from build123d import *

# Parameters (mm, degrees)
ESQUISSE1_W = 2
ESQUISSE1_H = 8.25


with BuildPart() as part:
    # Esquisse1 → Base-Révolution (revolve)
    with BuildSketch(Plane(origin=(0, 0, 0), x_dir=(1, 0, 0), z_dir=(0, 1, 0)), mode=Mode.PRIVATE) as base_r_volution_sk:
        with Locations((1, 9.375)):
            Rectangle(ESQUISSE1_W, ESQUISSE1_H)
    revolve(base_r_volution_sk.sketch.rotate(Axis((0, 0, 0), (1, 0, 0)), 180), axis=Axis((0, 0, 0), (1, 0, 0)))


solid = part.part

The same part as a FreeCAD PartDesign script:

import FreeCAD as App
import Part
import Sketcher
Q = App.Units.Quantity

doc = App.newDocument("Part")
body = doc.addObject("PartDesign::Body", "Body")

sketch1 = doc.addObject("Sketcher::SketchObject", "Sketch")
body.addObject(sketch1)
sketch1.AttachmentSupport = (doc.XZ_Plane, [""])
sketch1.MapMode = "FlatFace"
sketch1.addGeometry(Part.LineSegment(App.Vector(0, -13.5, 0), App.Vector(0, -5.25, 0)), False)
sketch1.addGeometry(Part.LineSegment(App.Vector(0, -5.25, 0), App.Vector(2, -5.25, 0)), False)
sketch1.addGeometry(Part.LineSegment(App.Vector(2, -5.25, 0), App.Vector(2, -13.5, 0)), False)
sketch1.addGeometry(Part.LineSegment(App.Vector(2, -13.5, 0), App.Vector(0, -13.5, 0)), False)
sketch1.addConstraint(Sketcher.Constraint("Coincident", 0, 2, 1, 1))
sketch1.addConstraint(Sketcher.Constraint("Coincident", 1, 2, 2, 1))
sketch1.addConstraint(Sketcher.Constraint("Coincident", 2, 2, 3, 1))
sketch1.addConstraint(Sketcher.Constraint("Coincident", 3, 2, 0, 1))
sketch1.addConstraint(Sketcher.Constraint("Vertical", 0))
sketch1.addConstraint(Sketcher.Constraint("Horizontal", 1))
sketch1.addConstraint(Sketcher.Constraint("Vertical", 2))
sketch1.addConstraint(Sketcher.Constraint("Horizontal", 3))
sketch1.addConstraint(Sketcher.Constraint("PointOnObject", 0, 2, -2))
sketch1.addConstraint(Sketcher.Constraint("DistanceX", 1, 1, 1, 2, Q("2 mm")))
sketch1.addConstraint(Sketcher.Constraint("DistanceY", 0, 1, 0, 2, Q("8.25 mm")))
sketch1.addConstraint(Sketcher.Constraint("DistanceY", 2, 2, -1, 1, Q("13.5 mm")))
revolution = doc.addObject("PartDesign::Revolution", "Revolution")
body.addObject(revolution)
revolution.Profile = sketch1
revolution.ReferenceAxis = (sketch1, ["H_Axis"])
revolution.Angle = 360

doc.recompute()
